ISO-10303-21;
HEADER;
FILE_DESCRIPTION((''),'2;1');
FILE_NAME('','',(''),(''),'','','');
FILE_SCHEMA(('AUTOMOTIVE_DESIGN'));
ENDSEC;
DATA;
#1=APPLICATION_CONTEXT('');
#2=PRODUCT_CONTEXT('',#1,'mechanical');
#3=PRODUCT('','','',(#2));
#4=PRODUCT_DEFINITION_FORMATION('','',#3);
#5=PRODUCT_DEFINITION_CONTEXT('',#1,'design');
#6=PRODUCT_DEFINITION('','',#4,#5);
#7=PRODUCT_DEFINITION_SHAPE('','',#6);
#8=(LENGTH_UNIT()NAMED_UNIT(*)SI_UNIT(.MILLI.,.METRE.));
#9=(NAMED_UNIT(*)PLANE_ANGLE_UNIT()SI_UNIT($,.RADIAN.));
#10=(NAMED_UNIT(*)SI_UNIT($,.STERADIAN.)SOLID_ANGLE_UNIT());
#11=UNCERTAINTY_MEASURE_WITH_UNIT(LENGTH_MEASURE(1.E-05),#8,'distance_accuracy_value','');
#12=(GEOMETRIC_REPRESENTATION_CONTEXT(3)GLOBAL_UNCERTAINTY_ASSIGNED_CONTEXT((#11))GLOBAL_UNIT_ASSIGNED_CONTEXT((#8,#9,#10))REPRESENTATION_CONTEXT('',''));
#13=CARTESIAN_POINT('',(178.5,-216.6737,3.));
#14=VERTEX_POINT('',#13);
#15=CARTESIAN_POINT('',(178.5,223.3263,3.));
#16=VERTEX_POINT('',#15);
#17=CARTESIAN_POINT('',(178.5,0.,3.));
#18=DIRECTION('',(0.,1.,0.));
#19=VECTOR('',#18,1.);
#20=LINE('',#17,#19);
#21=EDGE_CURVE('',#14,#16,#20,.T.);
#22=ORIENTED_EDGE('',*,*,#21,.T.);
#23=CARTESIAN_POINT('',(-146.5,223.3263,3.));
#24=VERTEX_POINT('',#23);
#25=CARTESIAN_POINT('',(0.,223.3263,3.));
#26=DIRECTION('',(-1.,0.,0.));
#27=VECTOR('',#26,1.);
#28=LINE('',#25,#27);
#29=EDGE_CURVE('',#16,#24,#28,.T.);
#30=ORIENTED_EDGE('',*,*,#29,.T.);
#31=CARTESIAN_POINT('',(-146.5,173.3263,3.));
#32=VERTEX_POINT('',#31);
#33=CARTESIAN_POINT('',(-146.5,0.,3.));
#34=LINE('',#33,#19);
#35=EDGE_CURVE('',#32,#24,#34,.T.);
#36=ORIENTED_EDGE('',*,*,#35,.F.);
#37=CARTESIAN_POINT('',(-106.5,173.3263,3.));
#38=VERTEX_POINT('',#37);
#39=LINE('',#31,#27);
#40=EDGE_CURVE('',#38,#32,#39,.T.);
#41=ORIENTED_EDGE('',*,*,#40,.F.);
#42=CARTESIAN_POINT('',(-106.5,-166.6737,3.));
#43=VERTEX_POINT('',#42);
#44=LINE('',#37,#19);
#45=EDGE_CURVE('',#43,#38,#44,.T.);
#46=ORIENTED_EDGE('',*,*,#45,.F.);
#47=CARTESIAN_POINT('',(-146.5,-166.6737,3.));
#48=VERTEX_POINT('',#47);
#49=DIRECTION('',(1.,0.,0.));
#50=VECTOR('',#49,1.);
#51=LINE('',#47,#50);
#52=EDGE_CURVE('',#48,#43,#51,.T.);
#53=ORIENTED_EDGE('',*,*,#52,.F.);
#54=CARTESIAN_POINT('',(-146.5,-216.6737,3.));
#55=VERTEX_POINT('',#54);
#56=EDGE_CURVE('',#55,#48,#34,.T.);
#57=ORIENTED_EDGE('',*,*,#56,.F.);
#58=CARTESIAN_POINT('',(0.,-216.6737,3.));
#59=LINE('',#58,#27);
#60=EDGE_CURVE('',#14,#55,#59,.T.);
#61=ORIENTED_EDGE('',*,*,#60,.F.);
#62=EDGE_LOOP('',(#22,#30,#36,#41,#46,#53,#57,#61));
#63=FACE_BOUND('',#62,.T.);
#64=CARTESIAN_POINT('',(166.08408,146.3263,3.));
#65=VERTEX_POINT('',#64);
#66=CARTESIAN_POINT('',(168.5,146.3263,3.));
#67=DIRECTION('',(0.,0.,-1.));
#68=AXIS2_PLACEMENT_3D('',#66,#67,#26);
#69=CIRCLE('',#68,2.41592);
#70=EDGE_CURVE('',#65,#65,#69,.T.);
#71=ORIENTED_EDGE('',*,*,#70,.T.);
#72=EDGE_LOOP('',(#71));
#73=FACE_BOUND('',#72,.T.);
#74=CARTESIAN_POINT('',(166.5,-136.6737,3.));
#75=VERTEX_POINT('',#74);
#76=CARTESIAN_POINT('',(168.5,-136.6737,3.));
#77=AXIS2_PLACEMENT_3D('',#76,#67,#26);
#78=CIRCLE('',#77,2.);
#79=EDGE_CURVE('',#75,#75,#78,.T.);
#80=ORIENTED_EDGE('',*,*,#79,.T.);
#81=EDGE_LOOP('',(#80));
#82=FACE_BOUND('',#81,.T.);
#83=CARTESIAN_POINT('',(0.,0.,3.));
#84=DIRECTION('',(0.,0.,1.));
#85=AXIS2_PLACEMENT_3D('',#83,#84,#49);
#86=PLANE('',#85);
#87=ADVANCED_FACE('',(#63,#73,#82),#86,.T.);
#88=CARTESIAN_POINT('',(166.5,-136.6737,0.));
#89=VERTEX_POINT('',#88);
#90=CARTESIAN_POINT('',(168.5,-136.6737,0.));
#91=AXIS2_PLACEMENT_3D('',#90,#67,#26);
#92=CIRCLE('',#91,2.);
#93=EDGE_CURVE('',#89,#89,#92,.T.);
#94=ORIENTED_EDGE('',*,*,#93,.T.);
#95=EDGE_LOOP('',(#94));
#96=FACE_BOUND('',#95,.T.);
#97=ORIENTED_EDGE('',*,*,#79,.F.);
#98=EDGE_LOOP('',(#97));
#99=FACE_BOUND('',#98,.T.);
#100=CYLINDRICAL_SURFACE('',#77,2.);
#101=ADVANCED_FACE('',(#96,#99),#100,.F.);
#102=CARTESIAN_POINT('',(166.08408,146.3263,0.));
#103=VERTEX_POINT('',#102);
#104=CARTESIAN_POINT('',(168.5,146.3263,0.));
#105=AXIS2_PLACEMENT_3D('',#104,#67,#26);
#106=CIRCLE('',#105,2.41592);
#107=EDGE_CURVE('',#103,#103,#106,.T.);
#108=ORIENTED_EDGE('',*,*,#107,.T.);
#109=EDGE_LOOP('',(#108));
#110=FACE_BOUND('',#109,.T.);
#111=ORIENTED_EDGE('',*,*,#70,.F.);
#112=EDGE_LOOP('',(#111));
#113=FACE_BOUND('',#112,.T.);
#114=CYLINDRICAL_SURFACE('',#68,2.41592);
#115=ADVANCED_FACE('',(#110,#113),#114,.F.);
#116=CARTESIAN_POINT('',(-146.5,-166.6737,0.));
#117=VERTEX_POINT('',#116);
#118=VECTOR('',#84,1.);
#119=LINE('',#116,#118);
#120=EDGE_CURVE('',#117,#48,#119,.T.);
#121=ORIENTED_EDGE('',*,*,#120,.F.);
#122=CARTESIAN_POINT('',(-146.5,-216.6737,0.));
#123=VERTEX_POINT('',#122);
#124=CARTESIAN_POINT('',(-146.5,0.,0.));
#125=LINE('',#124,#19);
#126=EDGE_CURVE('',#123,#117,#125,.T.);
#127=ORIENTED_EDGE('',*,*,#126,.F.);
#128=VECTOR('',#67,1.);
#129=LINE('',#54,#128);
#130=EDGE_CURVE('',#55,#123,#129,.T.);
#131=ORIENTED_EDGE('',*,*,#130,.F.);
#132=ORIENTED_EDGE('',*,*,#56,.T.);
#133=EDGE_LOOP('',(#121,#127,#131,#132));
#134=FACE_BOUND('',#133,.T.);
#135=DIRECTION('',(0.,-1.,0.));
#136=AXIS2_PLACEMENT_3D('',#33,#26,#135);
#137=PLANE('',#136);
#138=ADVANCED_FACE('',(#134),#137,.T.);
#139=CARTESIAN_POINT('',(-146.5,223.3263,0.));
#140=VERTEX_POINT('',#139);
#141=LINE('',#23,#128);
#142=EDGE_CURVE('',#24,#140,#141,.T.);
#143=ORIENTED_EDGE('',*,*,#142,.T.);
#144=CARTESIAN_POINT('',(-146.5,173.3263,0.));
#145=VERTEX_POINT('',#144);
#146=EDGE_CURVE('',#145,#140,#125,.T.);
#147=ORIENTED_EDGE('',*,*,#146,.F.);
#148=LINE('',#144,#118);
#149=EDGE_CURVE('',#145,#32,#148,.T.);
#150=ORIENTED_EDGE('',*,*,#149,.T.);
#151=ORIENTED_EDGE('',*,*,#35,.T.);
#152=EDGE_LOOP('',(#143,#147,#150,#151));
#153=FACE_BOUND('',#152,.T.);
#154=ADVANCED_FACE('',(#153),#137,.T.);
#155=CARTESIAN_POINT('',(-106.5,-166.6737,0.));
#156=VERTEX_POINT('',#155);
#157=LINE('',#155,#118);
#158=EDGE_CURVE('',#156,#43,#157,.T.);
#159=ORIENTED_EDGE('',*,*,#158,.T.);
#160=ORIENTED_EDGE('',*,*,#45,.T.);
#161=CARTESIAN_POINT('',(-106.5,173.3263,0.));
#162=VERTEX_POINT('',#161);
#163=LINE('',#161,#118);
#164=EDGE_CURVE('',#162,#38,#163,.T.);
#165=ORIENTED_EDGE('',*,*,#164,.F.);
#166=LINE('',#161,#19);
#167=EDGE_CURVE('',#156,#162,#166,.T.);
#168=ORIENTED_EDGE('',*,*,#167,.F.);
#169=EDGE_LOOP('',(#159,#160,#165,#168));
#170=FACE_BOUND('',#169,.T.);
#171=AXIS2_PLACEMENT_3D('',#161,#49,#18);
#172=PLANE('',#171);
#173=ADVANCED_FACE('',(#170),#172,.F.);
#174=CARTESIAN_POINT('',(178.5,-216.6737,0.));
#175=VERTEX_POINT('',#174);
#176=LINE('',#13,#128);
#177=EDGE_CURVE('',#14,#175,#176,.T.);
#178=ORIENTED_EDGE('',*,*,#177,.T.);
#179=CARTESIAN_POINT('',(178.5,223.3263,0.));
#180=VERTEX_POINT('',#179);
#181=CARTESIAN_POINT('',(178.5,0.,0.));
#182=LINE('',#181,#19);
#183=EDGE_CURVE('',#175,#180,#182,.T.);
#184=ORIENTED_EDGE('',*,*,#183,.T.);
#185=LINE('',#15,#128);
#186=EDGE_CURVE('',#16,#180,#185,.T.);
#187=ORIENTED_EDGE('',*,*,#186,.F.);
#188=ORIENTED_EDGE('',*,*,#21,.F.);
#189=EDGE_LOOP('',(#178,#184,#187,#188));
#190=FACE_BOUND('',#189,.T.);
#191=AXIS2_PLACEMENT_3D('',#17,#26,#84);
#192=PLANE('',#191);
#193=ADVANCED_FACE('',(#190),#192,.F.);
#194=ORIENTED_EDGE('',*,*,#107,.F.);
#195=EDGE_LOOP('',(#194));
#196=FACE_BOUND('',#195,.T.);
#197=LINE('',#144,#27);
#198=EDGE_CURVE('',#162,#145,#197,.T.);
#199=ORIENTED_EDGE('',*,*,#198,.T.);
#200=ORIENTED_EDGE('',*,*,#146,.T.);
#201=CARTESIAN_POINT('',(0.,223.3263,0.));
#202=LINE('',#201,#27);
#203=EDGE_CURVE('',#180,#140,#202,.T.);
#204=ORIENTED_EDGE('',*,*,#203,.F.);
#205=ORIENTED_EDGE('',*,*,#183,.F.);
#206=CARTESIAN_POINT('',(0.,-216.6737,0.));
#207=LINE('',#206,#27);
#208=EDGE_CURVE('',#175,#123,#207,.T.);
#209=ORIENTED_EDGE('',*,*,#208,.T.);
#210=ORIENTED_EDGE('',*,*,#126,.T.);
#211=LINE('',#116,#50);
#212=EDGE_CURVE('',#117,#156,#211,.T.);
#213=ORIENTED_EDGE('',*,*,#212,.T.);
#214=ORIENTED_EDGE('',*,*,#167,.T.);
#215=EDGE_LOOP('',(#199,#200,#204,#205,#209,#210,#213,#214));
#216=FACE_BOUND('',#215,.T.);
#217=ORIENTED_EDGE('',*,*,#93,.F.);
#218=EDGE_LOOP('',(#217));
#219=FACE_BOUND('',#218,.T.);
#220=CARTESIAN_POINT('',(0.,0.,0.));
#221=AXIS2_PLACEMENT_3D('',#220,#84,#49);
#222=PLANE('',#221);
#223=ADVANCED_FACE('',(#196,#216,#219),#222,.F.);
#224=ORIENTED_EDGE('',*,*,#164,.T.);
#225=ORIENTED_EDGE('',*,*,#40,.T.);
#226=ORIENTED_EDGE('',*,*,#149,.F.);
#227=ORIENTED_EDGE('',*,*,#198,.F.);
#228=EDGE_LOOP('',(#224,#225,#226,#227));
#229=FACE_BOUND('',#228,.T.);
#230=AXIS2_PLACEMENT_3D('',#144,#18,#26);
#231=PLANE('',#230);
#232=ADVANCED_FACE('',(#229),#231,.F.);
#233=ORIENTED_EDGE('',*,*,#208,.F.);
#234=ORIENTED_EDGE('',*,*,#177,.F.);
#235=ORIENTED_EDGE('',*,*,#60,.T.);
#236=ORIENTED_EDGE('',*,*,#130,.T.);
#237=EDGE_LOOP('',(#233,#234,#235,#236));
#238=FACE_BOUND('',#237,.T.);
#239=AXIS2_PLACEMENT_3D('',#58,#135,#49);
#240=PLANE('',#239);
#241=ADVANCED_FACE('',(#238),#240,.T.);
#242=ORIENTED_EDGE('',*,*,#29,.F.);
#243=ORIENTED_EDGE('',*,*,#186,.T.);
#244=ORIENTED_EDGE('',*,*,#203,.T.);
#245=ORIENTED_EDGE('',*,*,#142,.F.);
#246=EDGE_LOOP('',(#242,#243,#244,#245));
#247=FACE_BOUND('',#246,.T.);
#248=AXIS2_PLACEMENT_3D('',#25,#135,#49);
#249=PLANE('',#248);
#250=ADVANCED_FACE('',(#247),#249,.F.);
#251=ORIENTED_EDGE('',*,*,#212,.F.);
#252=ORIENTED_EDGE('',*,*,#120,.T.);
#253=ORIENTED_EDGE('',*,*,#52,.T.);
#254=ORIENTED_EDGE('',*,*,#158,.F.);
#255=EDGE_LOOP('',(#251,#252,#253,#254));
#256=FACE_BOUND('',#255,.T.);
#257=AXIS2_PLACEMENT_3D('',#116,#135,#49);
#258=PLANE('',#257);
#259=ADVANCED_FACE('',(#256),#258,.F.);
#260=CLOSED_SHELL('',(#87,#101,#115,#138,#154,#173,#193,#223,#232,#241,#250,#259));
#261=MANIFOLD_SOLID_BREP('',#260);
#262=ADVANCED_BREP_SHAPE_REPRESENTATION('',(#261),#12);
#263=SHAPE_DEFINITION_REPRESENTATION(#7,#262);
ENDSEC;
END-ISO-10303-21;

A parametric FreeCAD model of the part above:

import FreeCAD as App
import Part
import Sketcher

doc = App.newDocument("Part")
body = doc.addObject("PartDesign::Body", "Body")

sketch1 = doc.addObject("Sketcher::SketchObject", "Sketch")
body.addObject(sketch1)
sketch1.AttachmentSupport = (doc.XY_Plane, [""])
sketch1.MapMode = "FlatFace"
sketch1.addGeometry(Part.LineSegment(App.Vector(-146, 223, 0), App.Vector(-146, -217, 0)), False)
sketch1.addGeometry(Part.LineSegment(App.Vector(-146, -217, 0), App.Vector(178, -217, 0)), False)
sketch1.addGeometry(Part.LineSegment(App.Vector(178, -217, 0), App.Vector(178, 223, 0)), False)
sketch1.addGeometry(Part.LineSegment(App.Vector(178, 223, 0), App.Vector(-146, 223, 0)), False)
sketch1.addConstraint(Sketcher.Constraint("Coincident", 0, 2, 1, 1))
sketch1.addConstraint(Sketcher.Constraint("Coincident", 1, 2, 2, 1))
sketch1.addConstraint(Sketcher.Constraint("Coincident", 2, 2, 3, 1))
sketch1.addConstraint(Sketcher.Constraint("Coincident", 3, 2, 0, 1))
sketch1.addConstraint(Sketcher.Constraint("Vertical", 0))
sketch1.addConstraint(Sketcher.Constraint("Horizontal", 1))
sketch1.addConstraint(Sketcher.Constraint("Vertical", 2))
sketch1.addConstraint(Sketcher.Constraint("Horizontal", 3))
sketch1.addConstraint(Sketcher.Constraint("DistanceX", 1, 1, 1, 2, 325.0))
sketch1.addConstraint(Sketcher.Constraint("DistanceY", 0, 2, 0, 1, 440.0))
sketch1.addConstraint(Sketcher.Constraint("DistanceX", 0, 2, -1, 1, 146.5))
sketch1.addConstraint(Sketcher.Constraint("DistanceY", 0, 2, -1, 1, 216.6737))
pad1 = doc.addObject("PartDesign::Pad", "Pad")
body.addObject(pad1)
pad1.Profile = sketch1
pad1.Length = 3

sketch2 = doc.addObject("Sketcher::SketchObject", "Sketch001")
body.addObject(sketch2)
sketch2.AttachmentSupport = (doc.XY_Plane, [""])
sketch2.MapMode = "FlatFace"
sketch2.AttachmentOffset = App.Placement(App.Vector(0, 0, 3), App.Rotation())
sketch2.addGeometry(Part.LineSegment(App.Vector(-146, 173, 0), App.Vector(-146, -167, 0)), False)
sketch2.addGeometry(Part.LineSegment(App.Vector(-146, -167, 0), App.Vector(-106, -167, 0)), False)
sketch2.addGeometry(Part.LineSegment(App.Vector(-106, -167, 0), App.Vector(-106, 173, 0)), False)
sketch2.addGeometry(Part.LineSegment(App.Vector(-106, 173, 0), App.Vector(-146, 173, 0)), False)
sketch2.addConstraint(Sketcher.Constraint("Coincident", 0, 2, 1, 1))
sketch2.addConstraint(Sketcher.Constraint("Coincident", 1, 2, 2, 1))
sketch2.addConstraint(Sketcher.Constraint("Coincident", 2, 2, 3, 1))
sketch2.addConstraint(Sketcher.Constraint("Coincident", 3, 2, 0, 1))
sketch2.addConstraint(Sketcher.Constraint("Vertical", 0))
sketch2.addConstraint(Sketcher.Constraint("Horizontal", 1))
sketch2.addConstraint(Sketcher.Constraint("Vertical", 2))
sketch2.addConstraint(Sketcher.Constraint("Horizontal", 3))
sketch2.addConstraint(Sketcher.Constraint("DistanceX", 1, 1, 1, 2, 40.0))
sketch2.addConstraint(Sketcher.Constraint("DistanceY", 0, 2, 0, 1, 340.0))
sketch2.addConstraint(Sketcher.Constraint("DistanceX", 0, 2, -1, 1, 146.5))
sketch2.addConstraint(Sketcher.Constraint("DistanceY", 0, 2, -1, 1, 166.6737))
pocket1 = doc.addObject("PartDesign::Pocket", "Pocket")
body.addObject(pocket1)
pocket1.Profile = sketch2
pocket1.Length = 3

sketch3 = doc.addObject("Sketcher::SketchObject", "Sketch002")
body.addObject(sketch3)
sketch3.AttachmentSupport = (doc.XY_Plane, [""])
sketch3.MapMode = "FlatFace"
sketch3.addGeometry(Part.Circle(App.Vector(168.5, -136.7, 0), App.Vector(0, 0, 1), 2), False)
sketch3.addGeometry(Part.Circle(App.Vector(168.5, 146.3, 0), App.Vector(0, 0, 1), 2.4), False)
sketch3.addConstraint(Sketcher.Constraint("Vertical", 0, 3, 1, 3))
sketch3.addConstraint(Sketcher.Constraint("Diameter", 0, 4.0))
sketch3.addConstraint(Sketcher.Constraint("DistanceY", 0, 3, 1, 3, 283.0))
sketch3.addConstraint(Sketcher.Constraint("DistanceX", -1, 1, 0, 3, 168.5))
sketch3.addConstraint(Sketcher.Constraint("Diameter", 1, 4.831839))
sketch3.addConstraint(Sketcher.Constraint("DistanceY", 0, 3, -1, 1, 136.6737))
pocket2 = doc.addObject("PartDesign::Pocket", "Pocket001")
body.addObject(pocket2)
pocket2.Profile = sketch3
pocket2.Length = 3
pocket2.Reversed = True

doc.recompute()
